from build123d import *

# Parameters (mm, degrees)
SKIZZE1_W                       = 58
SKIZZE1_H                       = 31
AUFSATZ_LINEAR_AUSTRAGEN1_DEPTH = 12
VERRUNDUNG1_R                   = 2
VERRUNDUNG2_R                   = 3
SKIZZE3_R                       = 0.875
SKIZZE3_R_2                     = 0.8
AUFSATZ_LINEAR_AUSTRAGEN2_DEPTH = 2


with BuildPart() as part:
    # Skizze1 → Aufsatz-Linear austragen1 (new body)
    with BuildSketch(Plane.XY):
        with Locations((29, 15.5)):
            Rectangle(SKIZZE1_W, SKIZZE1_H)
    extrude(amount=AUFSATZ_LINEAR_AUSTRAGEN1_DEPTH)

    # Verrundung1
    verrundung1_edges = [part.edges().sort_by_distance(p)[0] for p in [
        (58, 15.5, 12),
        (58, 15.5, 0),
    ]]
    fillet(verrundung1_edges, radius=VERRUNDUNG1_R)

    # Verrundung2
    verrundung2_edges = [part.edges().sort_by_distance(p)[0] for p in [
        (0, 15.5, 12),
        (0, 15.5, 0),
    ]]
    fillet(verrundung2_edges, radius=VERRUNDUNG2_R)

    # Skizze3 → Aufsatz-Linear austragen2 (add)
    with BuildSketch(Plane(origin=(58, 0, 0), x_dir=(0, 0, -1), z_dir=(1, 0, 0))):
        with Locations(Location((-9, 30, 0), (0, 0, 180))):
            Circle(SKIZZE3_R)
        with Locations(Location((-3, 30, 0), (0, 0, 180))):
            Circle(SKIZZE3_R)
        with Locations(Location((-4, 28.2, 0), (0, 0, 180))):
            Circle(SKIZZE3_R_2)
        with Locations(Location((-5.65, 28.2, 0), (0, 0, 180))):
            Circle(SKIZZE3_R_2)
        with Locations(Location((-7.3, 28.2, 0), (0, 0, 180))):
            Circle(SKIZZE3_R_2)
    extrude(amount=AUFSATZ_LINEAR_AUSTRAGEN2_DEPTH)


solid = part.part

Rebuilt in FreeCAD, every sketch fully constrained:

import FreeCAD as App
import Part
import Sketcher

V = App.Vector
Q = App.Units.Quantity


def edges_at(feature, points):
    """Names of the edges that pass closest to the given points."""
    edges = feature.Shape.Edges
    near = lambda p: min(range(len(edges)), key=lambda i: edges[i].distToShape(Part.Vertex(*p))[0])
    return sorted({f"Edge{near(p) + 1}" for p in points})


def add_polygon(sketch, points):
    """Adds a closed chain of lines whose ends are joined by coincident constraints."""
    first, n = sketch.GeometryCount, len(points)
    for a, b in zip(points, points[1:] + points[:1]):
        sketch.addGeometry(Part.LineSegment(App.Vector(*a, 0), App.Vector(*b, 0)), False)
    for i in range(n):
        sketch.addConstraint(Sketcher.Constraint("Coincident", first + i, 2, first + (i + 1) % n, 1))

doc = App.newDocument("Part")
params = doc.addObject("Spreadsheet::Sheet", "Params")
for row, (alias, value) in enumerate([
    ("sketch1_width", "58 mm"),
    ("sketch1_height", "31 mm"),
    ("pad1_length", "12 mm"),
    ("fillet_radius", "2 mm"),
    ("fillet2_radius", "3 mm"),
    ("sketch2_diameter", "1.6 mm"),
    ("sketch2_diameter2", "1.75 mm"),
    ("pad2_length", "2 mm"),
], start=1):
    params.set(f"A{row}", alias)
    params.set(f"B{row}", "=" + value)
    params.setAlias(f"B{row}", alias)

body = doc.addObject("PartDesign::Body", "Body")

sketch1 = body.newObject("Sketcher::SketchObject", "Sketch")
sketch1.AttachmentSupport = (doc.getObject("XY_Plane"), [""])
sketch1.MapMode = "FlatFace"
add_polygon(sketch1, [(0, 31), (0, 0), (58, 0), (58, 31)])
sketch1.addConstraint(Sketcher.Constraint("Vertical", 0))
sketch1.addConstraint(Sketcher.Constraint("Horizontal", 1))
sketch1.addConstraint(Sketcher.Constraint("Vertical", 2))
sketch1.addConstraint(Sketcher.Constraint("Horizontal", 3))
sketch1.addConstraint(Sketcher.Constraint("Coincident", 0, 2, -1, 1))
sketch1.addConstraint(Sketcher.Constraint("DistanceX", 1, 1, 1, 2, Q("58 mm")))
sketch1.addConstraint(Sketcher.Constraint("DistanceY", 0, 2, 0, 1, Q("31 mm")))
sketch1.setExpression("Constraints[9]", "Params.sketch1_width")
sketch1.setExpression("Constraints[10]", "Params.sketch1_height")
pad1 = body.newObject("PartDesign::Pad", "Pad")
pad1.Profile = sketch1
pad1.setExpression("Length", "Params.pad1_length")
doc.recompute()

fillet = body.newObject("PartDesign::Fillet", "Fillet")
fillet.Base = (pad1, edges_at(pad1, [(58, 15.5, 12), (58, 15.5, 0)]))
fillet.setExpression("Radius", "Params.fillet_radius")
doc.recompute()

fillet2 = body.newObject("PartDesign::Fillet", "Fillet001")
fillet2.Base = (fillet, edges_at(fillet, [(0, 15.5, 12), (0, 15.5, 0)]))
fillet2.setExpression("Radius", "Params.fillet2_radius")

sketch2 = body.newObject("Sketcher::SketchObject", "Sketch001")
sketch2.AttachmentSupport = (doc.getObject("YZ_Plane"), [""])
sketch2.MapMode = "FlatFace"
sketch2.AttachmentOffset = App.Placement(V(0, 0, 58), App.Rotation())
sketch2.addGeometry(Part.Circle(V(30, 9, 0), V(0, 0, 1), 0.9), False)
sketch2.addGeometry(Part.Circle(V(30, 3, 0), V(0, 0, 1), 0.9), False)
sketch2.addGeometry(Part.Circle(V(28.2, 4, 0), V(0, 0, 1), 0.8), False)
sketch2.addGeometry(Part.Circle(V(28.2, 5.7, 0), V(0, 0, 1), 0.8), False)
sketch2.addGeometry(Part.Circle(V(28.2, 7.3, 0), V(0, 0, 1), 0.8), False)
sketch2.addConstraint(Sketcher.Constraint("Equal", 0, 1))
sketch2.addConstraint(Sketcher.Constraint("Equal", 2, 3))
sketch2.addConstraint(Sketcher.Constraint("Equal", 3, 4))
sketch2.addConstraint(Sketcher.Constraint("Vertical", 0, 3, 1, 3))
sketch2.addConstraint(Sketcher.Constraint("Vertical", 2, 3, 3, 3))
sketch2.addConstraint(Sketcher.Constraint("Vertical", 3, 3, 4, 3))
sketch2.addConstraint(Sketcher.Constraint("Diameter", 2, Q("1.6 mm")))
sketch2.addConstraint(Sketcher.Constraint("Diameter", 0, Q("1.75 mm")))
sketch2.addConstraint(Sketcher.Constraint("DistanceX", -1, 1, 0, 3, Q("30 mm")))
sketch2.addConstraint(Sketcher.Constraint("DistanceY", -1, 1, 0, 3, Q("9 mm")))
sketch2.addConstraint(Sketcher.Constraint("DistanceY", -1, 1, 1, 3, Q("3 mm")))
sketch2.addConstraint(Sketcher.Constraint("DistanceY", -1, 1, 2, 3, Q("4 mm")))
sketch2.addConstraint(Sketcher.Constraint("DistanceX", -1, 1, 2, 3, Q("28.2 mm")))
sketch2.addConstraint(Sketcher.Constraint("DistanceY", -1, 1, 4, 3, Q("7.3 mm")))
sketch2.addConstraint(Sketcher.Constraint("DistanceY", -1, 1, 3, 3, Q("5.65 mm")))
sketch2.setExpression("Constraints[6]", "Params.sketch2_diameter")
sketch2.setExpression("Constraints[7]", "Params.sketch2_diameter2")
pad2 = body.newObject("PartDesign::Pad", "Pad001")
pad2.Profile = sketch2
pad2.setExpression("Length", "Params.pad2_length")

doc.recompute()
